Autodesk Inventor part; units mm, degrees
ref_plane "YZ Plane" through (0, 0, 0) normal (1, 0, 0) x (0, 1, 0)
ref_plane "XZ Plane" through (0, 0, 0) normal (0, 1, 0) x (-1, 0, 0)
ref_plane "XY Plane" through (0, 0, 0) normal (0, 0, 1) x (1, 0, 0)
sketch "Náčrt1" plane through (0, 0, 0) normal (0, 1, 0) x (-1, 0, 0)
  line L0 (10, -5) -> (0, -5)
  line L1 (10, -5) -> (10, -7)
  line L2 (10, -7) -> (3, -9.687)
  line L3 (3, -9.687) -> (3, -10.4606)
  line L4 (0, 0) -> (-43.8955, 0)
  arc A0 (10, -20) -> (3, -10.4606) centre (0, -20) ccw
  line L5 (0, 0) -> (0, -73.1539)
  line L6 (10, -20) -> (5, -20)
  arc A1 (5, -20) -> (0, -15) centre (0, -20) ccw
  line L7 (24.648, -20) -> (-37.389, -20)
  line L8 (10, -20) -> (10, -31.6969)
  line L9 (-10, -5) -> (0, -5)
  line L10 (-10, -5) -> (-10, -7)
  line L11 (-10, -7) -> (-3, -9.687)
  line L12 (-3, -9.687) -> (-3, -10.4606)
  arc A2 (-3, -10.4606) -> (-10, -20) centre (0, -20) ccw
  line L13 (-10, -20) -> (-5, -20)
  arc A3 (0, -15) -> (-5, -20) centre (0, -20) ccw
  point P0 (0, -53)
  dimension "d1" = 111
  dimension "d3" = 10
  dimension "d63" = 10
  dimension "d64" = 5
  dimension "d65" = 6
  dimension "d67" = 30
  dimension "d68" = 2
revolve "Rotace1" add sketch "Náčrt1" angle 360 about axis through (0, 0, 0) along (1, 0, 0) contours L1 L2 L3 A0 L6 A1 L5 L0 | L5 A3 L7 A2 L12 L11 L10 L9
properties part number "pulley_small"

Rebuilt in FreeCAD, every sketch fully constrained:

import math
import FreeCAD as App
import Part
import Sketcher
from FreeCAD import Vector
Q = App.Units.Quantity

doc = App.newDocument("Part")
body = doc.addObject("PartDesign::Body", "Body")

sketch1 = body.newObject("Sketcher::SketchObject", "Sketch")
sketch1.AttachmentSupport = (doc.getObject("XZ_Plane"), [""])
sketch1.MapMode = "FlatFace"
sketch1.addGeometry(Part.LineSegment(Vector(-10, -7, 0), Vector(-10, -5, 0)), False)
sketch1.addGeometry(Part.LineSegment(Vector(-10, -5, 0), Vector(10, -5, 0)), False)
sketch1.addGeometry(Part.LineSegment(Vector(10, -5, 0), Vector(10, -7, 0)), False)
sketch1.addGeometry(Part.LineSegment(Vector(10, -7, 0), Vector(3, -9.7, 0)), False)
sketch1.addGeometry(Part.LineSegment(Vector(3, -9.7, 0), Vector(3, -10.5, 0)), False)
sketch1.addGeometry(Part.ArcOfCircle(Part.Circle(Vector(0, -20, 0), Vector(0, 0, 1), 10), math.radians(0), math.radians(73)), False)
sketch1.addGeometry(Part.LineSegment(Vector(10, -20, 0), Vector(5, -20, 0)), False)
sketch1.addGeometry(Part.ArcOfCircle(Part.Circle(Vector(0, -20, 0), Vector(0, 0, 1), 5), math.radians(0), math.radians(180)), False)
sketch1.addGeometry(Part.LineSegment(Vector(-5, -20, 0), Vector(-10, -20, 0)), False)
sketch1.addGeometry(Part.ArcOfCircle(Part.Circle(Vector(0, -20, 0), Vector(0, 0, 1), 10), math.radians(107), math.radians(180)), False)
sketch1.addGeometry(Part.LineSegment(Vector(-3, -10.5, 0), Vector(-3, -9.7, 0)), False)
sketch1.addGeometry(Part.LineSegment(Vector(-3, -9.7, 0), Vector(-10, -7, 0)), False)
sketch1.addConstraint(Sketcher.Constraint("Coincident", 0, 2, 1, 1))
sketch1.addConstraint(Sketcher.Constraint("Coincident", 1, 2, 2, 1))
sketch1.addConstraint(Sketcher.Constraint("Coincident", 2, 2, 3, 1))
sketch1.addConstraint(Sketcher.Constraint("Coincident", 3, 2, 4, 1))
sketch1.addConstraint(Sketcher.Constraint("Coincident", 4, 2, 5, 2))
sketch1.addConstraint(Sketcher.Constraint("Coincident", 5, 1, 6, 1))
sketch1.addConstraint(Sketcher.Constraint("Coincident", 6, 2, 7, 1))
sketch1.addConstraint(Sketcher.Constraint("Coincident", 7, 2, 8, 1))
sketch1.addConstraint(Sketcher.Constraint("Coincident", 8, 2, 9, 2))
sketch1.addConstraint(Sketcher.Constraint("Coincident", 9, 1, 10, 1))
sketch1.addConstraint(Sketcher.Constraint("Coincident", 10, 2, 11, 1))
sketch1.addConstraint(Sketcher.Constraint("Coincident", 11, 2, 0, 1))
sketch1.addConstraint(Sketcher.Constraint("Vertical", 0))
sketch1.addConstraint(Sketcher.Constraint("Horizontal", 1))
sketch1.addConstraint(Sketcher.Constraint("Vertical", 2))
sketch1.addConstraint(Sketcher.Constraint("Vertical", 4))
sketch1.addConstraint(Sketcher.Constraint("Horizontal", 6))
sketch1.addConstraint(Sketcher.Constraint("Horizontal", 8))
sketch1.addConstraint(Sketcher.Constraint("Vertical", 10))
sketch1.addConstraint(Sketcher.Constraint("Coincident", 7, 3, 5, 3))
sketch1.addConstraint(Sketcher.Constraint("Coincident", 9, 3, 5, 3))
sketch1.addConstraint(Sketcher.Constraint("Equal", 5, 9))
sketch1.addConstraint(Sketcher.Constraint("Symmetric", 6, 2, 7, 2, -2))
sketch1.addConstraint(Sketcher.Constraint("Symmetric", 3, 2, 10, 2, -2))
sketch1.addConstraint(Sketcher.Constraint("Symmetric", 2, 2, 11, 2, -2))
sketch1.addConstraint(Sketcher.Constraint("Horizontal", 9, 3, 5, 1))
sketch1.addConstraint(Sketcher.Constraint("Vertical", 2, 2, 5, 1))
sketch1.addConstraint(Sketcher.Constraint("Radius", 5, Q("10 mm")))
sketch1.addConstraint(Sketcher.Constraint("Radius", 7, Q("5 mm")))
sketch1.addConstraint(Sketcher.Constraint("DistanceY", 0, 1, 0, 2, Q("2 mm")))
sketch1.addConstraint(Sketcher.Constraint("DistanceY", 0, 2, -1, 1, Q("5 mm")))
sketch1.addConstraint(Sketcher.Constraint("DistanceX", 4, 2, 6, 2, Q("2 mm")))
sketch1.addConstraint(Sketcher.Constraint("Angle", 3, Q("-159.0003 deg")))
sketch1.addConstraint(Sketcher.Constraint("DistanceY", 5, 3, -1, 1, Q("20 mm")))
revolution = body.newObject("PartDesign::Revolution", "Revolution")
revolution.Profile = sketch1
revolution.ReferenceAxis = (sketch1, ["H_Axis"])
revolution.Angle = 360

doc.recompute()
